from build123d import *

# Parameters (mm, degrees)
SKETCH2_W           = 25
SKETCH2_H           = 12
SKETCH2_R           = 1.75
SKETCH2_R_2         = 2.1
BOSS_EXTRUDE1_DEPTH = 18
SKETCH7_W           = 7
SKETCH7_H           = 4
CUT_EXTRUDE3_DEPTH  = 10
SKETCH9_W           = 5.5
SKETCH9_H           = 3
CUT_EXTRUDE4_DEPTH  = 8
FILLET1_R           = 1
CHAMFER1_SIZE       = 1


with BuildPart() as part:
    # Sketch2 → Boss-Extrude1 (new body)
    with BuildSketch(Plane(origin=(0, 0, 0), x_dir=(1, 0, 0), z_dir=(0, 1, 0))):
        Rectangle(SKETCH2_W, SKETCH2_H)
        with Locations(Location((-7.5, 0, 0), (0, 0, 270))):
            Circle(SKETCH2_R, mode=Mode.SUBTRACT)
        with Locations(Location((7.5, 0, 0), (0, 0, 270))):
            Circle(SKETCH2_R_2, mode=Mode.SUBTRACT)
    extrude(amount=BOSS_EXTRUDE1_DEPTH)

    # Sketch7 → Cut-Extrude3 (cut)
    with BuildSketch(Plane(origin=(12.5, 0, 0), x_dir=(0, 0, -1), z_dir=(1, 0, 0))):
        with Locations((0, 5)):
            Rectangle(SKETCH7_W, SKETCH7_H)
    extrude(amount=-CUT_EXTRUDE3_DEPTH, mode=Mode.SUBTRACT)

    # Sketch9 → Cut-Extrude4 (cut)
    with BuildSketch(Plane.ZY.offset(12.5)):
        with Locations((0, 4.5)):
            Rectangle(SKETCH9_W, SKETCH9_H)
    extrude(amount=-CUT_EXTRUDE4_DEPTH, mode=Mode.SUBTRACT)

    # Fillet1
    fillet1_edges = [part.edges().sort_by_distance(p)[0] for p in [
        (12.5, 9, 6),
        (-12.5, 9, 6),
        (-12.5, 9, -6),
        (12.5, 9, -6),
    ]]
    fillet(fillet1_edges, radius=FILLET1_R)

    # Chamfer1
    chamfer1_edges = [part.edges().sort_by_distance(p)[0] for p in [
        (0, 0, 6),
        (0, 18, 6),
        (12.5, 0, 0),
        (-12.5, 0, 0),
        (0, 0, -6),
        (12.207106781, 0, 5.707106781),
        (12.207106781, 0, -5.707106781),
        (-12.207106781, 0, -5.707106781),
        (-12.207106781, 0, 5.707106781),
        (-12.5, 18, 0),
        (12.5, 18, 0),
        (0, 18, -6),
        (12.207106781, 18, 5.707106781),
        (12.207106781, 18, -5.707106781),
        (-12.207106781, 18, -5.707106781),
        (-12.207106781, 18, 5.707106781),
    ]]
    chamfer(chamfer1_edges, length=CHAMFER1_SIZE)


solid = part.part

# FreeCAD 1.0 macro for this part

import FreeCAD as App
import Part
import Sketcher
Q = App.Units.Quantity


def edges_at(feature, points):
    """Names of the edges that pass closest to the given points."""
    edges = feature.Shape.Edges
    near = lambda p: min(range(len(edges)), key=lambda i: edges[i].distToShape(Part.Vertex(*p))[0])
    return sorted({f"Edge{near(p) + 1}" for p in points})


def add_polygon(sketch, points):
    """Adds a closed chain of lines whose ends are joined by coincident constraints."""
    first, n = sketch.GeometryCount, len(points)
    for a, b in zip(points, points[1:] + points[:1]):
        sketch.addGeometry(Part.LineSegment(App.Vector(*a, 0), App.Vector(*b, 0)), False)
    for i in range(n):
        sketch.addConstraint(Sketcher.Constraint("Coincident", first + i, 2, first + (i + 1) % n, 1))

doc = App.newDocument("Part")
body = doc.addObject("PartDesign::Body", "Body")

sketch1 = body.newObject("Sketcher::SketchObject", "Sketch")
sketch1.AttachmentSupport = (doc.getObject("XZ_Plane"), [""])
sketch1.MapMode = "FlatFace"
add_polygon(sketch1, [(-12.5, -6), (-12.5, 6), (12.5, 6), (12.5, -6)])
sketch1.addGeometry(Part.Circle(App.Vector(-7.5, 0, 0), App.Vector(0, 0, 1), 1.75), False)
sketch1.addGeometry(Part.Circle(App.Vector(7.5, 0, 0), App.Vector(0, 0, 1), 2.1), False)
sketch1.addConstraint([
    Sketcher.Constraint("Vertical", 0),
    Sketcher.Constraint("Horizontal", 1),
    Sketcher.Constraint("Vertical", 2),
    Sketcher.Constraint("Horizontal", 3),
    Sketcher.Constraint("Symmetric", 4, 3, 5, 3, -1, 1),
    Sketcher.Constraint("Symmetric", 0, 2, 2, 2, -1, 1),
    Sketcher.Constraint("PointOnObject", 4, 3, -1),
    Sketcher.Constraint("Diameter", 4, Q("3.5 mm")),
    Sketcher.Constraint("Diameter", 5, Q("4.2 mm")),
    Sketcher.Constraint("DistanceX", 1, 1, 1, 2, Q("25 mm")),
    Sketcher.Constraint("DistanceY", 0, 1, 0, 2, Q("12 mm")),
    Sketcher.Constraint("DistanceX", 4, 3, 5, 3, Q("15 mm")),
])
pad1 = body.newObject("PartDesign::Pad", "Pad")
pad1.Profile = sketch1
pad1.Length = 18
pad1.Reversed = True

sketch2 = body.newObject("Sketcher::SketchObject", "Sketch001")
sketch2.AttachmentSupport = (doc.getObject("YZ_Plane"), [""])
sketch2.MapMode = "FlatFace"
sketch2.AttachmentOffset = App.Placement(App.Vector(0, 0, 12.5), App.Rotation())
add_polygon(sketch2, [(7, 3.5), (3, 3.5), (3, -3.5), (7, -3.5)])
sketch2.addConstraint([
    Sketcher.Constraint("Horizontal", 0),
    Sketcher.Constraint("Vertical", 1),
    Sketcher.Constraint("Horizontal", 2),
    Sketcher.Constraint("Vertical", 3),
    Sketcher.Constraint("DistanceX", 0, 2, 0, 1, Q("4 mm")),
    Sketcher.Constraint("DistanceY", 1, 2, 1, 1, Q("7 mm")),
    Sketcher.Constraint("DistanceX", -1, 1, 0, 2, Q("3 mm")),
    Sketcher.Constraint("DistanceY", -1, 1, 0, 2, Q("3.5 mm")),
])
pocket1 = body.newObject("PartDesign::Pocket", "Pocket")
pocket1.Profile = sketch2
pocket1.Length = 10

sketch3 = body.newObject("Sketcher::SketchObject", "Sketch002")
sketch3.AttachmentSupport = (doc.getObject("YZ_Plane"), [""])
sketch3.MapMode = "FlatFace"
sketch3.AttachmentOffset = App.Placement(App.Vector(0, 0, -12.5), App.Rotation())
add_polygon(sketch3, [(6, -2.75), (3, -2.75), (3, 2.75), (6, 2.75)])
sketch3.addConstraint([
    Sketcher.Constraint("Horizontal", 0),
    Sketcher.Constraint("Vertical", 1),
    Sketcher.Constraint("Horizontal", 2),
    Sketcher.Constraint("Vertical", 3),
    Sketcher.Constraint("DistanceX", 0, 2, 0, 1, Q("3 mm")),
    Sketcher.Constraint("DistanceY", 1, 1, 1, 2, Q("5.5 mm")),
    Sketcher.Constraint("DistanceX", -1, 1, 0, 2, Q("3 mm")),
    Sketcher.Constraint("DistanceY", 0, 2, -1, 1, Q("2.75 mm")),
])
pocket2 = body.newObject("PartDesign::Pocket", "Pocket001")
pocket2.Profile = sketch3
pocket2.Length = 8
pocket2.Reversed = True
doc.recompute()

fillet = body.newObject("PartDesign::Fillet", "Fillet")
fillet.Base = (pocket2, edges_at(pocket2, [
    (12.5, 9, 6),
    (-12.5, 9, 6),
    (-12.5, 9, -6),
    (12.5, 9, -6),
]))
fillet.Radius = 1
doc.recompute()

chamfer = body.newObject("PartDesign::Chamfer", "Chamfer")
chamfer.Base = (fillet, edges_at(fillet, [
    (0, 0, 6),
    (0, 18, 6),
    (12.5, 0, 0),
    (-12.5, 0, 0),
    (0, 0, -6),
    (12.207, 0, 5.707),
    (12.207, 0, -5.707),
    (-12.207, 0, -5.707),
    (-12.207, 0, 5.707),
    (-12.5, 18, 0),
    (12.5, 18, 0),
    (0, 18, -6),
    (12.207, 18, 5.707),
    (12.207, 18, -5.707),
    (-12.207, 18, -5.707),
    (-12.207, 18, 5.707),
]))
chamfer.Size = 1

doc.recompute()
